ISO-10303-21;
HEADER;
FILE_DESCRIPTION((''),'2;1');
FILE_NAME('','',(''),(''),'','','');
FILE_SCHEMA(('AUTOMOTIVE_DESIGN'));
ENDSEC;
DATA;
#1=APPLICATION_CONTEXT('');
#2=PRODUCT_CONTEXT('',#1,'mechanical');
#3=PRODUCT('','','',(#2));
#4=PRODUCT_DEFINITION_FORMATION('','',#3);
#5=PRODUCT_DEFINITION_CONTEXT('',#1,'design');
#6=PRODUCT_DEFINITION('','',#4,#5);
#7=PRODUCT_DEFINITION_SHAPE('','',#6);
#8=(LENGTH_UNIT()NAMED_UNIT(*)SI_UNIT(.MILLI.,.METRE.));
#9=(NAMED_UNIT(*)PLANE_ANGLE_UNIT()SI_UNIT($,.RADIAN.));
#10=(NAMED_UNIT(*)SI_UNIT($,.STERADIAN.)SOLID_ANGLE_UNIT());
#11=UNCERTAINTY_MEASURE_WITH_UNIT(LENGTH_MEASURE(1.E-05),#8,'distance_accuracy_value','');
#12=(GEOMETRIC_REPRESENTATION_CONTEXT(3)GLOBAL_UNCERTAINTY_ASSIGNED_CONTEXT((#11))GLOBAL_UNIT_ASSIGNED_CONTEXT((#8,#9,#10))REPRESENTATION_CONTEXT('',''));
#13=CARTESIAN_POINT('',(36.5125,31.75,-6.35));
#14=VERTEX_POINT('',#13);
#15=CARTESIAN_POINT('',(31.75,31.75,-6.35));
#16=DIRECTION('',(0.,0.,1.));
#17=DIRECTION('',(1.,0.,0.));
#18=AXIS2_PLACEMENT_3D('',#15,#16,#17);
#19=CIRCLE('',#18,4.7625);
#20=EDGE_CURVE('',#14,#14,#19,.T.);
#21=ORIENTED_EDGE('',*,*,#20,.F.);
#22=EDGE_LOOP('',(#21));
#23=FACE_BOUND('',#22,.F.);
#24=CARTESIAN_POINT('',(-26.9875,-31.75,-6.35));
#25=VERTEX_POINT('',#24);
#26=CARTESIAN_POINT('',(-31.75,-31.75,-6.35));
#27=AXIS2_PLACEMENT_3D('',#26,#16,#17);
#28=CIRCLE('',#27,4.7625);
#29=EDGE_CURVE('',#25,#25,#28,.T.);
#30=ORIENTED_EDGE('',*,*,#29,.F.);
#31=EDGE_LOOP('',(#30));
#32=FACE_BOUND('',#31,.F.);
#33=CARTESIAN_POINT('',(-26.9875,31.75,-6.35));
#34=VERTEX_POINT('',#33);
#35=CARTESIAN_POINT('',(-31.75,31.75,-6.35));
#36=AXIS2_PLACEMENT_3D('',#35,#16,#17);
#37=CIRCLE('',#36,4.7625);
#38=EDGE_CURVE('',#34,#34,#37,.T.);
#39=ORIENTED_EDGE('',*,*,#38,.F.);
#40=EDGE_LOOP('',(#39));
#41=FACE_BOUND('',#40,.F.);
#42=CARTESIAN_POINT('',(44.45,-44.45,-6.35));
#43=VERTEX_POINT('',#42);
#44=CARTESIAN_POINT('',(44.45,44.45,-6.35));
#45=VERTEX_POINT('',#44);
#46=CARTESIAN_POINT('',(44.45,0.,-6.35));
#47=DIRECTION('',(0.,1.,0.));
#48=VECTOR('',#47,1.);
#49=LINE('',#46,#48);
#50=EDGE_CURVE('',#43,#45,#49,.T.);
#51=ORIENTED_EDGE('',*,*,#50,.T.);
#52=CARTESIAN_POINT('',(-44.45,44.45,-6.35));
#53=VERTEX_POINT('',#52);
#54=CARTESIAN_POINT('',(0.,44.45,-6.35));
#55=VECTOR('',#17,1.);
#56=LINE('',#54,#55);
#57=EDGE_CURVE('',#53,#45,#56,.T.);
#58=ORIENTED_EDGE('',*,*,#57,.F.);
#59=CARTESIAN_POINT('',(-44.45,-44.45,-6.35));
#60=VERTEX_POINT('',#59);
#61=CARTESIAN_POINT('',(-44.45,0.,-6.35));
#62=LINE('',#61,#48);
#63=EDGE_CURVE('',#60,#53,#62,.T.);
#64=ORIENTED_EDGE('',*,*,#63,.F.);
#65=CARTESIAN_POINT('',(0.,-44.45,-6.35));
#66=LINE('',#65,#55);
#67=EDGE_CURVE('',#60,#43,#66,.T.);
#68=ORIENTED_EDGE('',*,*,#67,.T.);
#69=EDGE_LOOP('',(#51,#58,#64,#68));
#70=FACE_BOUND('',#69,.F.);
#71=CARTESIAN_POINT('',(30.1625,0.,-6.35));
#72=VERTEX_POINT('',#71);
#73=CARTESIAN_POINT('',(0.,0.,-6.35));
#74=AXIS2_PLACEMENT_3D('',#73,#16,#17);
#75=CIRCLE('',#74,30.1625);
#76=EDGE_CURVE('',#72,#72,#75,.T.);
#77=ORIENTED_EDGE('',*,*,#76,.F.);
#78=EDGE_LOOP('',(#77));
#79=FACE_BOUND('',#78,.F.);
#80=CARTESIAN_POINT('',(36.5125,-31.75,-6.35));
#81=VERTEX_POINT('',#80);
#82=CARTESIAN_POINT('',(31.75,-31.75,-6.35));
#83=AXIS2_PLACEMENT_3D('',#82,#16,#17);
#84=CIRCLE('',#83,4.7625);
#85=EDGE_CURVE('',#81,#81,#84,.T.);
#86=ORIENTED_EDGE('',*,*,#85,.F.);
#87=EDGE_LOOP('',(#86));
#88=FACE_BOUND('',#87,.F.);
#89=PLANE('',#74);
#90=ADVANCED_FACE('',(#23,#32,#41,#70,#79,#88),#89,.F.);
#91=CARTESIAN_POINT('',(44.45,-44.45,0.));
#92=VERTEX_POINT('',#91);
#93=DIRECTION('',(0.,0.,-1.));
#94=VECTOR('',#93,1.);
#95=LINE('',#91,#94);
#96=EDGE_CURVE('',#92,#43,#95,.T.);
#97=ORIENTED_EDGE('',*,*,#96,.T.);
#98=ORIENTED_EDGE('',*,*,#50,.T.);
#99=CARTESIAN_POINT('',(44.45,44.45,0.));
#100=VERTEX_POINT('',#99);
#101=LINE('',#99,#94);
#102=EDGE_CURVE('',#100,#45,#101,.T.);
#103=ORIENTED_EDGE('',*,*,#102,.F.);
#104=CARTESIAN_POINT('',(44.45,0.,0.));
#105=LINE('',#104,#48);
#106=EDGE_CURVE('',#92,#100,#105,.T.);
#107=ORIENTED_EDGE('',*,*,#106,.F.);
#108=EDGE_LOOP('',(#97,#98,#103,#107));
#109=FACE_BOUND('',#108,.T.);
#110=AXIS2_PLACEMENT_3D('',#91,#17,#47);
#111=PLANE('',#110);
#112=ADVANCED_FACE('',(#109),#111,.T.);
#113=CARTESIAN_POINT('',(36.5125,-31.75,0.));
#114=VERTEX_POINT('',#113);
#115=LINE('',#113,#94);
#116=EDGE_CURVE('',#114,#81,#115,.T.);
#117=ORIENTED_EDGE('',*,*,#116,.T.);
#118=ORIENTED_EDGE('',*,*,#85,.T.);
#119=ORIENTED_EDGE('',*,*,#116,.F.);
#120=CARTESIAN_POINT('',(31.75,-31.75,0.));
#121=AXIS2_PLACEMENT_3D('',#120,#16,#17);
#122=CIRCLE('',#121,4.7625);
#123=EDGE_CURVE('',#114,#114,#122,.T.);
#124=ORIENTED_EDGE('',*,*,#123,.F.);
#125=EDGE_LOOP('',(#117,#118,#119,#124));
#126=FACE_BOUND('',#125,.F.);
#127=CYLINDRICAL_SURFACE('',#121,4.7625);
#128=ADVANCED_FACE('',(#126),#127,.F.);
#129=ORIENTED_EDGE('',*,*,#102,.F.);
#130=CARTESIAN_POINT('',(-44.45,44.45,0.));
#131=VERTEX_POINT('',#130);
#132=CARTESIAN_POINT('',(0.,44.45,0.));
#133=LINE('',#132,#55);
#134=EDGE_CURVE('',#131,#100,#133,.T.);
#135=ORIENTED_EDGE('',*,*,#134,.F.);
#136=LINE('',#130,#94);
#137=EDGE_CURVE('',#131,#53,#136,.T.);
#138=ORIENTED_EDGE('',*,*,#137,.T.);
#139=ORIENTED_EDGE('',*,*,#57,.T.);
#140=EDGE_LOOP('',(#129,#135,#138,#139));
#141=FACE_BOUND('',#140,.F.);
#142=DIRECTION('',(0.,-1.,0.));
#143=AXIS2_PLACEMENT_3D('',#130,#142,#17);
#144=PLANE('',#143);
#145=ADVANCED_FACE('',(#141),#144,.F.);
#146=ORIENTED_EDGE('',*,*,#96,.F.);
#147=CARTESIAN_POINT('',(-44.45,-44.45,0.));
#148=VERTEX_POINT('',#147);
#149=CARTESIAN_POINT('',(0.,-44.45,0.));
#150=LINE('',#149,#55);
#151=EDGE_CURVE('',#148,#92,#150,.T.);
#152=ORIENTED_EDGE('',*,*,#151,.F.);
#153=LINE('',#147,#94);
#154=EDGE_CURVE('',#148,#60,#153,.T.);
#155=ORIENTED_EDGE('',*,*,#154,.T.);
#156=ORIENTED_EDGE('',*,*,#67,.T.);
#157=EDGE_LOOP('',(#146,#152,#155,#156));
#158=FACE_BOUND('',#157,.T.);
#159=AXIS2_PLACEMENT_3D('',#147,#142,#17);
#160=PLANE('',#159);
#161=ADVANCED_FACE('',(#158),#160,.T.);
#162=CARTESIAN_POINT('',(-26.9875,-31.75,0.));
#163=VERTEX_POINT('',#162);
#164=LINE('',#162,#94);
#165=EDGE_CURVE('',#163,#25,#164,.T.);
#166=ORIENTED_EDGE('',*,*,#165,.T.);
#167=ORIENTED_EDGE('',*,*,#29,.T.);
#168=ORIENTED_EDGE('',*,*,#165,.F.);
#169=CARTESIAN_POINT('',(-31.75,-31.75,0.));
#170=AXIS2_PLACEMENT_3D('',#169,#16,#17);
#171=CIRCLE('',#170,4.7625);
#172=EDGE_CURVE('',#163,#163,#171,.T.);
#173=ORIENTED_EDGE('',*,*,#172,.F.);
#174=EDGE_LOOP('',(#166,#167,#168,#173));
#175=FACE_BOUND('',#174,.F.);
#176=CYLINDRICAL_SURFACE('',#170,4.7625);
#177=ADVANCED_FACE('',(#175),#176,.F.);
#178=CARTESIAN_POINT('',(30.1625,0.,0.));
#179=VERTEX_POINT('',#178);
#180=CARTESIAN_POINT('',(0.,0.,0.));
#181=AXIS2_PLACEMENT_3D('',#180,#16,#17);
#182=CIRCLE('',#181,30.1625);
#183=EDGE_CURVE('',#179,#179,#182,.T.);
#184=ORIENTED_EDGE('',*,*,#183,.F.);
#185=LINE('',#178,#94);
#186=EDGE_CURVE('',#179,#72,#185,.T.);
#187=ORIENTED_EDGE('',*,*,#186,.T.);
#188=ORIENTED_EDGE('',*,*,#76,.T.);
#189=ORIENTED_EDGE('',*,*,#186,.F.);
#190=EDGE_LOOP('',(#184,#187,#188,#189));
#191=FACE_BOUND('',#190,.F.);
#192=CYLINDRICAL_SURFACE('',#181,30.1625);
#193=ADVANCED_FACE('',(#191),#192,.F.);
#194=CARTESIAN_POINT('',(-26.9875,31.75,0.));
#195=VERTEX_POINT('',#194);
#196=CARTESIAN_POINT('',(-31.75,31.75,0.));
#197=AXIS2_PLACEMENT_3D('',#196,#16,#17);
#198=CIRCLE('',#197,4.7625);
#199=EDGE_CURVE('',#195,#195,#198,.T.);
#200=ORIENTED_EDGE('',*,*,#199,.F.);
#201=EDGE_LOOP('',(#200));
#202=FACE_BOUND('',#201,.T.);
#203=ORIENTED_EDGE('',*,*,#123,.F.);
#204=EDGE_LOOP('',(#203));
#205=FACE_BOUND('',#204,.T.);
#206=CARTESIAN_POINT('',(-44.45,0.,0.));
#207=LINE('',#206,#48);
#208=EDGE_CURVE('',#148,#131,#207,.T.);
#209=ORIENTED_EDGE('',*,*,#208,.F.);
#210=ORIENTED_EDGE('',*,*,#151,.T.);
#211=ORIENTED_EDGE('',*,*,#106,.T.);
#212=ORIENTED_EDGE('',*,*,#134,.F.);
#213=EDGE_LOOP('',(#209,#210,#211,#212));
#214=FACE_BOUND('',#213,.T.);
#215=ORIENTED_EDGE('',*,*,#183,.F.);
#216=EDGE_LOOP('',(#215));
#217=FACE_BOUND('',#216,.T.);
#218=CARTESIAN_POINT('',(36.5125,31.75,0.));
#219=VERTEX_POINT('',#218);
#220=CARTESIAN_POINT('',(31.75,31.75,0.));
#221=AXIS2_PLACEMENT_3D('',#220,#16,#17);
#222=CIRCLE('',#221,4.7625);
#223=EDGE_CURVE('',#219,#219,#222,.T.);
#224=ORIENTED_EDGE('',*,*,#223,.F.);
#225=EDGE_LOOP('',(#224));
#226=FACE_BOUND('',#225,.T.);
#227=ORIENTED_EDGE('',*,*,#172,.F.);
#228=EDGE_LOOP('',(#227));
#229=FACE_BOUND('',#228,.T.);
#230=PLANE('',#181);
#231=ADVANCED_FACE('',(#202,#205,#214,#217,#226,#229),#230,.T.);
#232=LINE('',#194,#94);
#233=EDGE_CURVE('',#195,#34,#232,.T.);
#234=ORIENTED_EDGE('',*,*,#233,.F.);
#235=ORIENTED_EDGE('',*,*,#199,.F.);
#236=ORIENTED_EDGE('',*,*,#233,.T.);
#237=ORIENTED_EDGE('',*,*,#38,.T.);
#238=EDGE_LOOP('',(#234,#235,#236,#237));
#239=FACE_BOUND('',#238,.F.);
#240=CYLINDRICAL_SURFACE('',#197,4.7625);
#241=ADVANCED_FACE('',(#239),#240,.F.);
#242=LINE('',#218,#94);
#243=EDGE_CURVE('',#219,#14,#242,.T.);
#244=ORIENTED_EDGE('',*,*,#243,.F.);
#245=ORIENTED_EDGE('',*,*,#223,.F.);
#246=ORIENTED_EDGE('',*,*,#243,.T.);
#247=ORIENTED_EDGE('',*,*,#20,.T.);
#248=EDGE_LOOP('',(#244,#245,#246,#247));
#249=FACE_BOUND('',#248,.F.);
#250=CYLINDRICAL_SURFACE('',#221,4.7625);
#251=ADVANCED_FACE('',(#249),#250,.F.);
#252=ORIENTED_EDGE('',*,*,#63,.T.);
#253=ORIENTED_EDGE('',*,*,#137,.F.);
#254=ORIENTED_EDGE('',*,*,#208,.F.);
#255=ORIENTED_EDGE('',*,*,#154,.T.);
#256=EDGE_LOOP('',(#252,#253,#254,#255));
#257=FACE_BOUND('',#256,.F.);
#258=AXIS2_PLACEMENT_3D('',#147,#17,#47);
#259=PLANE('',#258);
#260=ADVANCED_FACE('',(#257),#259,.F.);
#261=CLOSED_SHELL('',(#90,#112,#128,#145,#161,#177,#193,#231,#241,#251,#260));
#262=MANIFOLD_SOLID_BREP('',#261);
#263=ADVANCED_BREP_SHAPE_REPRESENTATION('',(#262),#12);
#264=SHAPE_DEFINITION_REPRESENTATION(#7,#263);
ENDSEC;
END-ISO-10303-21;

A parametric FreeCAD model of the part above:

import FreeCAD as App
import Part
import Sketcher

V = App.Vector
Q = App.Units.Quantity

doc = App.newDocument("Part")
body = doc.addObject("PartDesign::Body", "Body")

sketch1 = body.newObject("Sketcher::SketchObject", "Sketch")
sketch1.AttachmentSupport = (doc.getObject("XY_Plane"), [""])
sketch1.MapMode = "FlatFace"
sketch1.addGeometry(Part.LineSegment(V(-44.5, 44.5, 0), V(-44.5, -44.5, 0)), False)
sketch1.addGeometry(Part.LineSegment(V(-44.5, -44.5, 0), V(44.5, -44.5, 0)), False)
sketch1.addGeometry(Part.LineSegment(V(44.5, -44.5, 0), V(44.5, 44.5, 0)), False)
sketch1.addGeometry(Part.LineSegment(V(44.5, 44.5, 0), V(-44.5, 44.5, 0)), False)
sketch1.addGeometry(Part.Circle(V(-31.8, -31.8, 0), V(0, 0, 1), 4.8), False)
sketch1.addGeometry(Part.Circle(V(31.8, -31.8, 0), V(0, 0, 1), 4.8), False)
sketch1.addGeometry(Part.Circle(V(-31.8, 31.8, 0), V(0, 0, 1), 4.8), False)
sketch1.addGeometry(Part.Circle(V(0, 0, 0), V(0, 0, 1), 30.2), False)
sketch1.addGeometry(Part.Circle(V(31.8, 31.8, 0), V(0, 0, 1), 4.8), False)
sketch1.addConstraint(Sketcher.Constraint("Coincident", 0, 2, 1, 1))
sketch1.addConstraint(Sketcher.Constraint("Coincident", 1, 2, 2, 1))
sketch1.addConstraint(Sketcher.Constraint("Coincident", 2, 2, 3, 1))
sketch1.addConstraint(Sketcher.Constraint("Coincident", 3, 2, 0, 1))
sketch1.addConstraint(Sketcher.Constraint("Vertical", 0))
sketch1.addConstraint(Sketcher.Constraint("Horizontal", 1))
sketch1.addConstraint(Sketcher.Constraint("Vertical", 2))
sketch1.addConstraint(Sketcher.Constraint("Horizontal", 3))
sketch1.addConstraint(Sketcher.Constraint("Coincident", 7, 3, -1, 1))
sketch1.addConstraint(Sketcher.Constraint("Equal", 4, 5))
sketch1.addConstraint(Sketcher.Constraint("Equal", 5, 6))
sketch1.addConstraint(Sketcher.Constraint("Equal", 6, 8))
sketch1.addConstraint(Sketcher.Constraint("Symmetric", 5, 3, 6, 3, -1, 1))
sketch1.addConstraint(Sketcher.Constraint("Symmetric", 4, 3, 8, 3, -1, 1))
sketch1.addConstraint(Sketcher.Constraint("Symmetric", 0, 2, 2, 2, -1, 1))
sketch1.addConstraint(Sketcher.Constraint("Symmetric", 4, 3, 5, 3, -2))
sketch1.addConstraint(Sketcher.Constraint("Equal", 3, 0))
sketch1.addConstraint(Sketcher.Constraint("Diameter", 4, Q("0.375 in")))
sketch1.addConstraint(Sketcher.Constraint("Diameter", 7, Q("2.375 in")))
sketch1.addConstraint(Sketcher.Constraint("DistanceX", 1, 1, 1, 2, Q("3.5 in")))
sketch1.addConstraint(Sketcher.Constraint("DistanceX", 0, 2, 5, 3, Q("3 in")))
sketch1.addConstraint(Sketcher.Constraint("DistanceY", 0, 2, 6, 3, Q("3 in")))
pad1 = body.newObject("PartDesign::Pad", "Pad")
pad1.Profile = sketch1
pad1.Length = Q("0.25 in")
pad1.Reversed = True

doc.recompute()
